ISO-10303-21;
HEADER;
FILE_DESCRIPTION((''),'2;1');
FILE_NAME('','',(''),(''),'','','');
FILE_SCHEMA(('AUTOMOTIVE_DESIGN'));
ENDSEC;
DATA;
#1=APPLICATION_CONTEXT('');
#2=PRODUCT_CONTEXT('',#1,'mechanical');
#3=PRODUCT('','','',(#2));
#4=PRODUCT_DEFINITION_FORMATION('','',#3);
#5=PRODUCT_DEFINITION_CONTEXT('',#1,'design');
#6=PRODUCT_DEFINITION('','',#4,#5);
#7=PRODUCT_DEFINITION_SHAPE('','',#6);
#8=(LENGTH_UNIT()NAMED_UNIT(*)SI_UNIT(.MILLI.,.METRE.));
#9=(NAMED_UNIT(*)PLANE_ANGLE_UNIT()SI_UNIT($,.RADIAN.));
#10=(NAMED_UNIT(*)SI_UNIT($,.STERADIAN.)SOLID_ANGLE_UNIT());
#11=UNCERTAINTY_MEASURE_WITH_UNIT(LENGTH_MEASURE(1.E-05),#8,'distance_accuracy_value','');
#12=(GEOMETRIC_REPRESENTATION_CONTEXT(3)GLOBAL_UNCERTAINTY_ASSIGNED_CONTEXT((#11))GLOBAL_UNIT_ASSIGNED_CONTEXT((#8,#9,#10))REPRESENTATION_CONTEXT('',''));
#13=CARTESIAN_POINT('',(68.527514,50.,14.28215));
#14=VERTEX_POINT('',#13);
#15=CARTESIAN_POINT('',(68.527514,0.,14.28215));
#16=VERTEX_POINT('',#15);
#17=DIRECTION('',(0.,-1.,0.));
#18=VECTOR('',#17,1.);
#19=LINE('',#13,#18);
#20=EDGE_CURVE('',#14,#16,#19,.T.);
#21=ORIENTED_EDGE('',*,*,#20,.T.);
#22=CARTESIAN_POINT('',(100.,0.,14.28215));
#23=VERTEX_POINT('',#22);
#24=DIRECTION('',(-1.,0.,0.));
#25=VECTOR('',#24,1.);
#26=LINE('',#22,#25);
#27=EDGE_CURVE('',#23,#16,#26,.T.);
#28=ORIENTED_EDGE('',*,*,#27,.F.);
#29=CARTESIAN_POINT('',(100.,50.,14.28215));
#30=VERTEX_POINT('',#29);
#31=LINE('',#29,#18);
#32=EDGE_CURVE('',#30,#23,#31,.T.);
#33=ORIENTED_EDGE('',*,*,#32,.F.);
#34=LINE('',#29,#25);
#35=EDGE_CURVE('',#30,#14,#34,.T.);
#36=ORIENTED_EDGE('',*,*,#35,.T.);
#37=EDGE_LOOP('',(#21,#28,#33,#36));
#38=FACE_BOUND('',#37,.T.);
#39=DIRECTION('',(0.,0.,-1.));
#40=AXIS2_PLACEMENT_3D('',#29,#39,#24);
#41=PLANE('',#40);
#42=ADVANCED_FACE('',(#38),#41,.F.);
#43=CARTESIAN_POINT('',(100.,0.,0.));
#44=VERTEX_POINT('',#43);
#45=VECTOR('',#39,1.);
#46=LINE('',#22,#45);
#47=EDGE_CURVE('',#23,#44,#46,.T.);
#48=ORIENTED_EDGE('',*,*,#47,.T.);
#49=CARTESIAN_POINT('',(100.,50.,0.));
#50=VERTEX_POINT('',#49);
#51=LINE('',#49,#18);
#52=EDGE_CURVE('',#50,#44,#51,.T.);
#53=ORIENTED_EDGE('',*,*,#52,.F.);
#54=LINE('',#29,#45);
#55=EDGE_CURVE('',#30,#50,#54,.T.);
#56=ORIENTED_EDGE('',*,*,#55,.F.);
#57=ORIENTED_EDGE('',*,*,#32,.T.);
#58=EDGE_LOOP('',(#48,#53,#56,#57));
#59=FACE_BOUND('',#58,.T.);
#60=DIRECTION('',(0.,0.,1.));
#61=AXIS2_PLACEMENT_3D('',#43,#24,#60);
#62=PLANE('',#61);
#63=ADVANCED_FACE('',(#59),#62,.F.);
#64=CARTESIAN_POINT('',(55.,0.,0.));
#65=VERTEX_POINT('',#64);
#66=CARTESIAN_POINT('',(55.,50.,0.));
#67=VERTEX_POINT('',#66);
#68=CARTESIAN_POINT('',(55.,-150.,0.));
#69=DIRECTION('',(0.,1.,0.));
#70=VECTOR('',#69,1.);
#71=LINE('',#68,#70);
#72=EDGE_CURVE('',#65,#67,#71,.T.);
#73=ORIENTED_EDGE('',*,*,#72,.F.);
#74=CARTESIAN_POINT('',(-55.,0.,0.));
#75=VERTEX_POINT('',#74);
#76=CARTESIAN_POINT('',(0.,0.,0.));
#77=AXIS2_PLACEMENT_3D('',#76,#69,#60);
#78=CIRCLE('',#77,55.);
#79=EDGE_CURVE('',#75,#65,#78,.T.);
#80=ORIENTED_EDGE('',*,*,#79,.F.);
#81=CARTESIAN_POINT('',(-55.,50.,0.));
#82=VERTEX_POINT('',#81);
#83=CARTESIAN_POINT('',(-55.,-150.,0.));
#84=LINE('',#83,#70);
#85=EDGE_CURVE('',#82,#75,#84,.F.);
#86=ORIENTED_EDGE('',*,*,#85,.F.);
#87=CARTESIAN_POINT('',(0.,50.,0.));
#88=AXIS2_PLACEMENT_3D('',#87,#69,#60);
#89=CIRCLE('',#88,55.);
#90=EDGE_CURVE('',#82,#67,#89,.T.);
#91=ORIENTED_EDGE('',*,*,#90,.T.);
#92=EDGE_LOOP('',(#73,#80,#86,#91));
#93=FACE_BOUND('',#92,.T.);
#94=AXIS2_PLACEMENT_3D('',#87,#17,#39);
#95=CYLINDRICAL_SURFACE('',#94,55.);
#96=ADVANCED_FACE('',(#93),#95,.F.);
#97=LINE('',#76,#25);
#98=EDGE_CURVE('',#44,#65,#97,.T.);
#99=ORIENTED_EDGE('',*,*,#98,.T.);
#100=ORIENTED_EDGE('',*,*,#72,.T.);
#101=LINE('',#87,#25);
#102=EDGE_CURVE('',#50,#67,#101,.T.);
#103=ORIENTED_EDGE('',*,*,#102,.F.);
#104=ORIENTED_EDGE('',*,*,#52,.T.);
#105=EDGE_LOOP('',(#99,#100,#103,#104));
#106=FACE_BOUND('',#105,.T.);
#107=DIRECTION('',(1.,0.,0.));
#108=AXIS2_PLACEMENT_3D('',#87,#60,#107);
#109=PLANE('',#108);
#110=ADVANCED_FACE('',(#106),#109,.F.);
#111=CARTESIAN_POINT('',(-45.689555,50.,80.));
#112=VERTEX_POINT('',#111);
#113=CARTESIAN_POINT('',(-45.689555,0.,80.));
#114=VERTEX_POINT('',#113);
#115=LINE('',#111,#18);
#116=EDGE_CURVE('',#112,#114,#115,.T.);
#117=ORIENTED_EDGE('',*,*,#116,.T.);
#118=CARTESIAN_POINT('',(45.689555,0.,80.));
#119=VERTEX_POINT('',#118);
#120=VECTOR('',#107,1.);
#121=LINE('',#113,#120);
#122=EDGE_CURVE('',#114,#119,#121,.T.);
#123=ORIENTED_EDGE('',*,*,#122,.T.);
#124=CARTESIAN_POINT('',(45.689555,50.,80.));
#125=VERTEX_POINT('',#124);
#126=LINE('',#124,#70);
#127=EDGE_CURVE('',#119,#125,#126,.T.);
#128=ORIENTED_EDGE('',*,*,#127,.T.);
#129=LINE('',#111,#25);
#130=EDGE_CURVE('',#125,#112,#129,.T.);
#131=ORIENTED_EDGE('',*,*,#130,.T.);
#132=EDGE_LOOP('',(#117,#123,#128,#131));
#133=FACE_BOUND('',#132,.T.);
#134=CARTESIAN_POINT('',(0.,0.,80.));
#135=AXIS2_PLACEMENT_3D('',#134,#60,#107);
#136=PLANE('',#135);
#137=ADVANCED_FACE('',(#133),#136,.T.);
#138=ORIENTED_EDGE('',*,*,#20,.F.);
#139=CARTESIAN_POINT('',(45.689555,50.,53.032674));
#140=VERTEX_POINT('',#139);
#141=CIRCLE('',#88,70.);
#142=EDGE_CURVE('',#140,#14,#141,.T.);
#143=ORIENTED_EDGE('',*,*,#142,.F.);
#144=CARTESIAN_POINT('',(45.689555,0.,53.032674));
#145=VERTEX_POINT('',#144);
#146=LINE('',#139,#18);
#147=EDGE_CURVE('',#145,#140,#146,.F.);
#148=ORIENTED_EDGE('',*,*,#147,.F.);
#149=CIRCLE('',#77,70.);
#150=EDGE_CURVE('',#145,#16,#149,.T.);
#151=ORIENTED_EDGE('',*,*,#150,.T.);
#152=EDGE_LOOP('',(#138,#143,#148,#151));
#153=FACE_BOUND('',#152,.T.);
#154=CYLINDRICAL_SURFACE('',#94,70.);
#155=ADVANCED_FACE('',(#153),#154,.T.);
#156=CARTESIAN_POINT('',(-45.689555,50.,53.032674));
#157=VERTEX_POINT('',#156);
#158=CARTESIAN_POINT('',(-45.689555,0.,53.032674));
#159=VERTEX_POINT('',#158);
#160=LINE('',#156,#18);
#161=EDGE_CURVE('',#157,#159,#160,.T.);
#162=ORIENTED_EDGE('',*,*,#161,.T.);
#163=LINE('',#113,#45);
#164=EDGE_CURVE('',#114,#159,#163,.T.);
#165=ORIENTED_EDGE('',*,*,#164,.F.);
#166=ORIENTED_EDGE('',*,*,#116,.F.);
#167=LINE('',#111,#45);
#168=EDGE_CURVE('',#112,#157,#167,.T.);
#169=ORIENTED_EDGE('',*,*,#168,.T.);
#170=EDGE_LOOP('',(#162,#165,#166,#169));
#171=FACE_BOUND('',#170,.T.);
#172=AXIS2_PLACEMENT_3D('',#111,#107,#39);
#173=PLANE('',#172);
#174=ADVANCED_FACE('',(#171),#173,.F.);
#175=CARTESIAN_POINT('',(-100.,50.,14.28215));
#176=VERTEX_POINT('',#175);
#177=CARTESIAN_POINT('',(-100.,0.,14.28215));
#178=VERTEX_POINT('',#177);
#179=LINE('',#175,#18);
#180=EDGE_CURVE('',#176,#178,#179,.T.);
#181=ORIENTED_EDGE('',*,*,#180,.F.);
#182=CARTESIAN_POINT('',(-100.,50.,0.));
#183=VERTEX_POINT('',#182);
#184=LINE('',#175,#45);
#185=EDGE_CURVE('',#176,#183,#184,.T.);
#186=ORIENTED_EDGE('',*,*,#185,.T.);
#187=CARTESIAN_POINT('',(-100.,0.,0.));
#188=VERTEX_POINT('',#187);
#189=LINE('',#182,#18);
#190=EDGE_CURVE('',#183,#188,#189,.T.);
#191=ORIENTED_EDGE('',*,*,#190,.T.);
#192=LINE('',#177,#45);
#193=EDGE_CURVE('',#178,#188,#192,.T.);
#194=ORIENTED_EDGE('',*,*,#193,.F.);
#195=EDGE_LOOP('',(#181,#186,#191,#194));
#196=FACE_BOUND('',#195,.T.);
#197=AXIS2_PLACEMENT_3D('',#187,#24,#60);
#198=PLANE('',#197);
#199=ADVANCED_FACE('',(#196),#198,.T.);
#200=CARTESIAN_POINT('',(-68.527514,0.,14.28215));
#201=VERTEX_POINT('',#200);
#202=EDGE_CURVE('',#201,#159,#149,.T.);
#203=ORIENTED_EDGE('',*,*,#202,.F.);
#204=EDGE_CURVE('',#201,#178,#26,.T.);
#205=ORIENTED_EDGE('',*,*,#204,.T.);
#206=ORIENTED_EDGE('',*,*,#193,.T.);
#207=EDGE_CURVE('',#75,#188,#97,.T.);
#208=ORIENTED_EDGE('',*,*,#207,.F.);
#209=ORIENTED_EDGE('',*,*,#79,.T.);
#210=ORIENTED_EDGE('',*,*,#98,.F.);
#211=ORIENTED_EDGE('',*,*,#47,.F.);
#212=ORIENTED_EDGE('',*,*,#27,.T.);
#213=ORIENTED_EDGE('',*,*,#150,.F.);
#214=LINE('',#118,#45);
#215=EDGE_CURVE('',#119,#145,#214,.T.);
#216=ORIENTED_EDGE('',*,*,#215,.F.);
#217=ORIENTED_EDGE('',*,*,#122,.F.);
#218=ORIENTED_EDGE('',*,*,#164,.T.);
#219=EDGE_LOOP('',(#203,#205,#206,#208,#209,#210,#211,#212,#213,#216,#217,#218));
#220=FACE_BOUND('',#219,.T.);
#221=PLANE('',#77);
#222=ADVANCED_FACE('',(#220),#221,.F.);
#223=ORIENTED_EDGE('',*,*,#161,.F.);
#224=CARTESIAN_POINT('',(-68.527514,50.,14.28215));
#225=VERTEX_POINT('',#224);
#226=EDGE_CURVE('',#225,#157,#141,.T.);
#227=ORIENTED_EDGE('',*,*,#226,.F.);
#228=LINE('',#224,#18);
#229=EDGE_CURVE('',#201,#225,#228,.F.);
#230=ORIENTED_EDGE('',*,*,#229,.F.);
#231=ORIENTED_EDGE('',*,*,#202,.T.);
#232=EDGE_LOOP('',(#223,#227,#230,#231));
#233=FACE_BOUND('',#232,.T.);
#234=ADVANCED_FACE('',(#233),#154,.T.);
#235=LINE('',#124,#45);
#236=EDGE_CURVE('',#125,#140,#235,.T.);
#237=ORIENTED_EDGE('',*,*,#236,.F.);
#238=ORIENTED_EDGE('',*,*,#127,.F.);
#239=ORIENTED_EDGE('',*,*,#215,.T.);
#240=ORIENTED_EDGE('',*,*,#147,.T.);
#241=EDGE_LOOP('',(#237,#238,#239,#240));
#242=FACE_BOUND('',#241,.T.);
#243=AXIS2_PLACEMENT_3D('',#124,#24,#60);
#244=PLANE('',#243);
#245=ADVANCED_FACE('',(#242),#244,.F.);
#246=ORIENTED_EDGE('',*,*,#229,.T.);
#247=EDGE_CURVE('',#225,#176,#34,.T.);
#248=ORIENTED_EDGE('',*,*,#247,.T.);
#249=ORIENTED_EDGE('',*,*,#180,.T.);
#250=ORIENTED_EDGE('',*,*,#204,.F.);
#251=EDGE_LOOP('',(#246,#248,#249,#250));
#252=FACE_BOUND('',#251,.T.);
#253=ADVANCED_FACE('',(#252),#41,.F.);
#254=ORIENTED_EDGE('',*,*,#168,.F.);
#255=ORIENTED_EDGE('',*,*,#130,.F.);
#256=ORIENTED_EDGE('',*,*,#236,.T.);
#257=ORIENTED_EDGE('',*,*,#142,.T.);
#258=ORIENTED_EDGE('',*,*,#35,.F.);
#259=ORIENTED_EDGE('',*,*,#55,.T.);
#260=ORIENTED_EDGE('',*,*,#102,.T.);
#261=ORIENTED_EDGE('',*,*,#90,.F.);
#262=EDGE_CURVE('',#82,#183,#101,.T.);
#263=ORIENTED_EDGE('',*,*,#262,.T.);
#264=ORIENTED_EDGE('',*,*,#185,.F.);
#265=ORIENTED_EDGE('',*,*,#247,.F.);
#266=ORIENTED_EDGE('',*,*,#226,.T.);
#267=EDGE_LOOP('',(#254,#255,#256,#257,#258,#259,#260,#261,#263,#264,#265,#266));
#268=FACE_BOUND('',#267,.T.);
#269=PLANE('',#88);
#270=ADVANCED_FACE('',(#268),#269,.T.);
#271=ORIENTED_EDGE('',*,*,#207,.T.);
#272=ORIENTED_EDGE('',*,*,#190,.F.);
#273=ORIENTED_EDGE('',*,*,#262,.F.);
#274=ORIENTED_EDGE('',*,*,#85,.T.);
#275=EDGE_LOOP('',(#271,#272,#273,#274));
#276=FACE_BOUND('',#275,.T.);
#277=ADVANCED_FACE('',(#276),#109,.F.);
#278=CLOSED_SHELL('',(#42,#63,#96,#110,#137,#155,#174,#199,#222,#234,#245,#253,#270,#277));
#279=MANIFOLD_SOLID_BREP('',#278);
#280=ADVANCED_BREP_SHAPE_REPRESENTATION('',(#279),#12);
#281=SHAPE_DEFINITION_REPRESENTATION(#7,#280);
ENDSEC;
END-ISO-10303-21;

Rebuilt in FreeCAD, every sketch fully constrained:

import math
import FreeCAD as App
import Part
import Sketcher
from FreeCAD import Vector
Q = App.Units.Quantity


def add_polygon(sketch, points):
    """Adds a closed chain of lines whose ends are joined by coincident constraints."""
    first, n = sketch.GeometryCount, len(points)
    for a, b in zip(points, points[1:] + points[:1]):
        sketch.addGeometry(Part.LineSegment(App.Vector(*a, 0), App.Vector(*b, 0)), False)
    for i in range(n):
        sketch.addConstraint(Sketcher.Constraint("Coincident", first + i, 2, first + (i + 1) % n, 1))

doc = App.newDocument("Part")
body = doc.addObject("PartDesign::Body", "Body")

# Sketch on XZ plane
sketch1 = body.newObject("Sketcher::SketchObject", "Sketch")
sketch1.AttachmentSupport = (doc.getObject("XZ_Plane"), [""])
sketch1.MapMode = "FlatFace"
sketch1.addGeometry([
    Part.ArcOfCircle(Part.Circle(Vector(0, 0, 0), Vector(0, 0, 1), 70), math.radians(0), math.radians(180)),
    Part.LineSegment(Vector(70, 0, 0), Vector(55, 0, 0)),
    Part.ArcOfCircle(Part.Circle(Vector(0, 0, 0), Vector(0, 0, 1), 55), math.radians(0), math.radians(180)),
    Part.LineSegment(Vector(-55, 0, 0), Vector(-70, 0, 0)),
], False)
sketch1.addConstraint([
    Sketcher.Constraint("Coincident", 0, 1, 1, 1),
    Sketcher.Constraint("Coincident", 1, 2, 2, 1),
    Sketcher.Constraint("Coincident", 2, 2, 3, 1),
    Sketcher.Constraint("Coincident", 3, 2, 0, 2),
    Sketcher.Constraint("Horizontal", 1),
    Sketcher.Constraint("Horizontal", 3),
    Sketcher.Constraint("Coincident", 0, 3, -1, 1),
    Sketcher.Constraint("Coincident", 2, 3, -1, 1),
    Sketcher.Constraint("PointOnObject", 0, 1, -1),
    Sketcher.Constraint("PointOnObject", 2, 2, -1),
    Sketcher.Constraint("Radius", 0, Q("70 mm")),
    Sketcher.Constraint("Radius", 2, Q("55 mm")),
])
pad1 = body.newObject("PartDesign::Pad", "Pad")
pad1.Profile = sketch1
pad1.Length = 50
pad1.Reversed = True

# Sketch on YZ plane
sketch2 = body.newObject("Sketcher::SketchObject", "Sketch001")
sketch2.AttachmentSupport = (doc.getObject("YZ_Plane"), [""])
sketch2.MapMode = "FlatFace"
add_polygon(sketch2, [(50, 14), (0, 14), (0, 0), (50, 0)])  # lines 0-3
sketch2.addConstraint([
    Sketcher.Constraint("Horizontal", 0),
    Sketcher.Constraint("Vertical", 1),
    Sketcher.Constraint("Horizontal", 2),
    Sketcher.Constraint("Vertical", 3),
    Sketcher.Constraint("Coincident", 1, 2, -1, 1),
    Sketcher.Constraint("DistanceX", 0, 2, 0, 1, Q("50 mm")),
    Sketcher.Constraint("DistanceY", 1, 2, 1, 1, Q("14.28215 mm")),
])
pad2 = body.newObject("PartDesign::Pad", "Pad001")
pad2.Profile = sketch2
pad2.Length = 200
pad2.Midplane = True

# Sketch on XZ plane
sketch3 = body.newObject("Sketcher::SketchObject", "Sketch002")
sketch3.AttachmentSupport = (doc.getObject("XZ_Plane"), [""])
sketch3.MapMode = "FlatFace"
sketch3.AttachmentOffset = App.Placement(Vector(0, 0, 150), App.Rotation())
sketch3.addGeometry(Part.Circle(Vector(0, 0, 0), Vector(0, 0, 1), 55), False)
sketch3.addConstraint([
    Sketcher.Constraint("Coincident", 0, 3, -1, 1),
    Sketcher.Constraint("Diameter", 0, Q("110 mm")),
])
pocket1 = body.newObject("PartDesign::Pocket", "Pocket")
pocket1.Profile = sketch3
pocket1.Length = 200

# Sketch on XY plane
sketch4 = body.newObject("Sketcher::SketchObject", "Sketch003")
sketch4.AttachmentSupport = (doc.getObject("XY_Plane"), [""])
sketch4.MapMode = "FlatFace"
add_polygon(sketch4, [(-46, 50), (-46, 0), (46, 0), (46, 50)])  # lines 0-3
sketch4.addConstraint([
    Sketcher.Constraint("Vertical", 0),
    Sketcher.Constraint("Horizontal", 1),
    Sketcher.Constraint("Vertical", 2),
    Sketcher.Constraint("Horizontal", 3),
    Sketcher.Constraint("Symmetric", 0, 2, 1, 2, -1, 1),
    Sketcher.Constraint("DistanceY", 0, 2, 0, 1, Q("50 mm")),
    Sketcher.Constraint("DistanceX", 1, 1, 1, 2, Q("91.37911 mm")),
])
pad3 = body.newObject("PartDesign::Pad", "Pad002")
pad3.Profile = sketch4
pad3.Length = 80

# Sketch on XZ plane
sketch5 = body.newObject("Sketcher::SketchObject", "Sketch004")
sketch5.AttachmentSupport = (doc.getObject("XZ_Plane"), [""])
sketch5.MapMode = "FlatFace"
sketch5.AttachmentOffset = App.Placement(Vector(0, 0, 150), App.Rotation())
sketch5.addGeometry(Part.Circle(Vector(0, 0, 0), Vector(0, 0, 1), 55), False)
sketch5.addConstraint([
    Sketcher.Constraint("Coincident", 0, 3, -1, 1),
    Sketcher.Constraint("Diameter", 0, Q("110 mm")),
])
pocket2 = body.newObject("PartDesign::Pocket", "Pocket001")
pocket2.Profile = sketch5
pocket2.Length = 200

doc.recompute()
